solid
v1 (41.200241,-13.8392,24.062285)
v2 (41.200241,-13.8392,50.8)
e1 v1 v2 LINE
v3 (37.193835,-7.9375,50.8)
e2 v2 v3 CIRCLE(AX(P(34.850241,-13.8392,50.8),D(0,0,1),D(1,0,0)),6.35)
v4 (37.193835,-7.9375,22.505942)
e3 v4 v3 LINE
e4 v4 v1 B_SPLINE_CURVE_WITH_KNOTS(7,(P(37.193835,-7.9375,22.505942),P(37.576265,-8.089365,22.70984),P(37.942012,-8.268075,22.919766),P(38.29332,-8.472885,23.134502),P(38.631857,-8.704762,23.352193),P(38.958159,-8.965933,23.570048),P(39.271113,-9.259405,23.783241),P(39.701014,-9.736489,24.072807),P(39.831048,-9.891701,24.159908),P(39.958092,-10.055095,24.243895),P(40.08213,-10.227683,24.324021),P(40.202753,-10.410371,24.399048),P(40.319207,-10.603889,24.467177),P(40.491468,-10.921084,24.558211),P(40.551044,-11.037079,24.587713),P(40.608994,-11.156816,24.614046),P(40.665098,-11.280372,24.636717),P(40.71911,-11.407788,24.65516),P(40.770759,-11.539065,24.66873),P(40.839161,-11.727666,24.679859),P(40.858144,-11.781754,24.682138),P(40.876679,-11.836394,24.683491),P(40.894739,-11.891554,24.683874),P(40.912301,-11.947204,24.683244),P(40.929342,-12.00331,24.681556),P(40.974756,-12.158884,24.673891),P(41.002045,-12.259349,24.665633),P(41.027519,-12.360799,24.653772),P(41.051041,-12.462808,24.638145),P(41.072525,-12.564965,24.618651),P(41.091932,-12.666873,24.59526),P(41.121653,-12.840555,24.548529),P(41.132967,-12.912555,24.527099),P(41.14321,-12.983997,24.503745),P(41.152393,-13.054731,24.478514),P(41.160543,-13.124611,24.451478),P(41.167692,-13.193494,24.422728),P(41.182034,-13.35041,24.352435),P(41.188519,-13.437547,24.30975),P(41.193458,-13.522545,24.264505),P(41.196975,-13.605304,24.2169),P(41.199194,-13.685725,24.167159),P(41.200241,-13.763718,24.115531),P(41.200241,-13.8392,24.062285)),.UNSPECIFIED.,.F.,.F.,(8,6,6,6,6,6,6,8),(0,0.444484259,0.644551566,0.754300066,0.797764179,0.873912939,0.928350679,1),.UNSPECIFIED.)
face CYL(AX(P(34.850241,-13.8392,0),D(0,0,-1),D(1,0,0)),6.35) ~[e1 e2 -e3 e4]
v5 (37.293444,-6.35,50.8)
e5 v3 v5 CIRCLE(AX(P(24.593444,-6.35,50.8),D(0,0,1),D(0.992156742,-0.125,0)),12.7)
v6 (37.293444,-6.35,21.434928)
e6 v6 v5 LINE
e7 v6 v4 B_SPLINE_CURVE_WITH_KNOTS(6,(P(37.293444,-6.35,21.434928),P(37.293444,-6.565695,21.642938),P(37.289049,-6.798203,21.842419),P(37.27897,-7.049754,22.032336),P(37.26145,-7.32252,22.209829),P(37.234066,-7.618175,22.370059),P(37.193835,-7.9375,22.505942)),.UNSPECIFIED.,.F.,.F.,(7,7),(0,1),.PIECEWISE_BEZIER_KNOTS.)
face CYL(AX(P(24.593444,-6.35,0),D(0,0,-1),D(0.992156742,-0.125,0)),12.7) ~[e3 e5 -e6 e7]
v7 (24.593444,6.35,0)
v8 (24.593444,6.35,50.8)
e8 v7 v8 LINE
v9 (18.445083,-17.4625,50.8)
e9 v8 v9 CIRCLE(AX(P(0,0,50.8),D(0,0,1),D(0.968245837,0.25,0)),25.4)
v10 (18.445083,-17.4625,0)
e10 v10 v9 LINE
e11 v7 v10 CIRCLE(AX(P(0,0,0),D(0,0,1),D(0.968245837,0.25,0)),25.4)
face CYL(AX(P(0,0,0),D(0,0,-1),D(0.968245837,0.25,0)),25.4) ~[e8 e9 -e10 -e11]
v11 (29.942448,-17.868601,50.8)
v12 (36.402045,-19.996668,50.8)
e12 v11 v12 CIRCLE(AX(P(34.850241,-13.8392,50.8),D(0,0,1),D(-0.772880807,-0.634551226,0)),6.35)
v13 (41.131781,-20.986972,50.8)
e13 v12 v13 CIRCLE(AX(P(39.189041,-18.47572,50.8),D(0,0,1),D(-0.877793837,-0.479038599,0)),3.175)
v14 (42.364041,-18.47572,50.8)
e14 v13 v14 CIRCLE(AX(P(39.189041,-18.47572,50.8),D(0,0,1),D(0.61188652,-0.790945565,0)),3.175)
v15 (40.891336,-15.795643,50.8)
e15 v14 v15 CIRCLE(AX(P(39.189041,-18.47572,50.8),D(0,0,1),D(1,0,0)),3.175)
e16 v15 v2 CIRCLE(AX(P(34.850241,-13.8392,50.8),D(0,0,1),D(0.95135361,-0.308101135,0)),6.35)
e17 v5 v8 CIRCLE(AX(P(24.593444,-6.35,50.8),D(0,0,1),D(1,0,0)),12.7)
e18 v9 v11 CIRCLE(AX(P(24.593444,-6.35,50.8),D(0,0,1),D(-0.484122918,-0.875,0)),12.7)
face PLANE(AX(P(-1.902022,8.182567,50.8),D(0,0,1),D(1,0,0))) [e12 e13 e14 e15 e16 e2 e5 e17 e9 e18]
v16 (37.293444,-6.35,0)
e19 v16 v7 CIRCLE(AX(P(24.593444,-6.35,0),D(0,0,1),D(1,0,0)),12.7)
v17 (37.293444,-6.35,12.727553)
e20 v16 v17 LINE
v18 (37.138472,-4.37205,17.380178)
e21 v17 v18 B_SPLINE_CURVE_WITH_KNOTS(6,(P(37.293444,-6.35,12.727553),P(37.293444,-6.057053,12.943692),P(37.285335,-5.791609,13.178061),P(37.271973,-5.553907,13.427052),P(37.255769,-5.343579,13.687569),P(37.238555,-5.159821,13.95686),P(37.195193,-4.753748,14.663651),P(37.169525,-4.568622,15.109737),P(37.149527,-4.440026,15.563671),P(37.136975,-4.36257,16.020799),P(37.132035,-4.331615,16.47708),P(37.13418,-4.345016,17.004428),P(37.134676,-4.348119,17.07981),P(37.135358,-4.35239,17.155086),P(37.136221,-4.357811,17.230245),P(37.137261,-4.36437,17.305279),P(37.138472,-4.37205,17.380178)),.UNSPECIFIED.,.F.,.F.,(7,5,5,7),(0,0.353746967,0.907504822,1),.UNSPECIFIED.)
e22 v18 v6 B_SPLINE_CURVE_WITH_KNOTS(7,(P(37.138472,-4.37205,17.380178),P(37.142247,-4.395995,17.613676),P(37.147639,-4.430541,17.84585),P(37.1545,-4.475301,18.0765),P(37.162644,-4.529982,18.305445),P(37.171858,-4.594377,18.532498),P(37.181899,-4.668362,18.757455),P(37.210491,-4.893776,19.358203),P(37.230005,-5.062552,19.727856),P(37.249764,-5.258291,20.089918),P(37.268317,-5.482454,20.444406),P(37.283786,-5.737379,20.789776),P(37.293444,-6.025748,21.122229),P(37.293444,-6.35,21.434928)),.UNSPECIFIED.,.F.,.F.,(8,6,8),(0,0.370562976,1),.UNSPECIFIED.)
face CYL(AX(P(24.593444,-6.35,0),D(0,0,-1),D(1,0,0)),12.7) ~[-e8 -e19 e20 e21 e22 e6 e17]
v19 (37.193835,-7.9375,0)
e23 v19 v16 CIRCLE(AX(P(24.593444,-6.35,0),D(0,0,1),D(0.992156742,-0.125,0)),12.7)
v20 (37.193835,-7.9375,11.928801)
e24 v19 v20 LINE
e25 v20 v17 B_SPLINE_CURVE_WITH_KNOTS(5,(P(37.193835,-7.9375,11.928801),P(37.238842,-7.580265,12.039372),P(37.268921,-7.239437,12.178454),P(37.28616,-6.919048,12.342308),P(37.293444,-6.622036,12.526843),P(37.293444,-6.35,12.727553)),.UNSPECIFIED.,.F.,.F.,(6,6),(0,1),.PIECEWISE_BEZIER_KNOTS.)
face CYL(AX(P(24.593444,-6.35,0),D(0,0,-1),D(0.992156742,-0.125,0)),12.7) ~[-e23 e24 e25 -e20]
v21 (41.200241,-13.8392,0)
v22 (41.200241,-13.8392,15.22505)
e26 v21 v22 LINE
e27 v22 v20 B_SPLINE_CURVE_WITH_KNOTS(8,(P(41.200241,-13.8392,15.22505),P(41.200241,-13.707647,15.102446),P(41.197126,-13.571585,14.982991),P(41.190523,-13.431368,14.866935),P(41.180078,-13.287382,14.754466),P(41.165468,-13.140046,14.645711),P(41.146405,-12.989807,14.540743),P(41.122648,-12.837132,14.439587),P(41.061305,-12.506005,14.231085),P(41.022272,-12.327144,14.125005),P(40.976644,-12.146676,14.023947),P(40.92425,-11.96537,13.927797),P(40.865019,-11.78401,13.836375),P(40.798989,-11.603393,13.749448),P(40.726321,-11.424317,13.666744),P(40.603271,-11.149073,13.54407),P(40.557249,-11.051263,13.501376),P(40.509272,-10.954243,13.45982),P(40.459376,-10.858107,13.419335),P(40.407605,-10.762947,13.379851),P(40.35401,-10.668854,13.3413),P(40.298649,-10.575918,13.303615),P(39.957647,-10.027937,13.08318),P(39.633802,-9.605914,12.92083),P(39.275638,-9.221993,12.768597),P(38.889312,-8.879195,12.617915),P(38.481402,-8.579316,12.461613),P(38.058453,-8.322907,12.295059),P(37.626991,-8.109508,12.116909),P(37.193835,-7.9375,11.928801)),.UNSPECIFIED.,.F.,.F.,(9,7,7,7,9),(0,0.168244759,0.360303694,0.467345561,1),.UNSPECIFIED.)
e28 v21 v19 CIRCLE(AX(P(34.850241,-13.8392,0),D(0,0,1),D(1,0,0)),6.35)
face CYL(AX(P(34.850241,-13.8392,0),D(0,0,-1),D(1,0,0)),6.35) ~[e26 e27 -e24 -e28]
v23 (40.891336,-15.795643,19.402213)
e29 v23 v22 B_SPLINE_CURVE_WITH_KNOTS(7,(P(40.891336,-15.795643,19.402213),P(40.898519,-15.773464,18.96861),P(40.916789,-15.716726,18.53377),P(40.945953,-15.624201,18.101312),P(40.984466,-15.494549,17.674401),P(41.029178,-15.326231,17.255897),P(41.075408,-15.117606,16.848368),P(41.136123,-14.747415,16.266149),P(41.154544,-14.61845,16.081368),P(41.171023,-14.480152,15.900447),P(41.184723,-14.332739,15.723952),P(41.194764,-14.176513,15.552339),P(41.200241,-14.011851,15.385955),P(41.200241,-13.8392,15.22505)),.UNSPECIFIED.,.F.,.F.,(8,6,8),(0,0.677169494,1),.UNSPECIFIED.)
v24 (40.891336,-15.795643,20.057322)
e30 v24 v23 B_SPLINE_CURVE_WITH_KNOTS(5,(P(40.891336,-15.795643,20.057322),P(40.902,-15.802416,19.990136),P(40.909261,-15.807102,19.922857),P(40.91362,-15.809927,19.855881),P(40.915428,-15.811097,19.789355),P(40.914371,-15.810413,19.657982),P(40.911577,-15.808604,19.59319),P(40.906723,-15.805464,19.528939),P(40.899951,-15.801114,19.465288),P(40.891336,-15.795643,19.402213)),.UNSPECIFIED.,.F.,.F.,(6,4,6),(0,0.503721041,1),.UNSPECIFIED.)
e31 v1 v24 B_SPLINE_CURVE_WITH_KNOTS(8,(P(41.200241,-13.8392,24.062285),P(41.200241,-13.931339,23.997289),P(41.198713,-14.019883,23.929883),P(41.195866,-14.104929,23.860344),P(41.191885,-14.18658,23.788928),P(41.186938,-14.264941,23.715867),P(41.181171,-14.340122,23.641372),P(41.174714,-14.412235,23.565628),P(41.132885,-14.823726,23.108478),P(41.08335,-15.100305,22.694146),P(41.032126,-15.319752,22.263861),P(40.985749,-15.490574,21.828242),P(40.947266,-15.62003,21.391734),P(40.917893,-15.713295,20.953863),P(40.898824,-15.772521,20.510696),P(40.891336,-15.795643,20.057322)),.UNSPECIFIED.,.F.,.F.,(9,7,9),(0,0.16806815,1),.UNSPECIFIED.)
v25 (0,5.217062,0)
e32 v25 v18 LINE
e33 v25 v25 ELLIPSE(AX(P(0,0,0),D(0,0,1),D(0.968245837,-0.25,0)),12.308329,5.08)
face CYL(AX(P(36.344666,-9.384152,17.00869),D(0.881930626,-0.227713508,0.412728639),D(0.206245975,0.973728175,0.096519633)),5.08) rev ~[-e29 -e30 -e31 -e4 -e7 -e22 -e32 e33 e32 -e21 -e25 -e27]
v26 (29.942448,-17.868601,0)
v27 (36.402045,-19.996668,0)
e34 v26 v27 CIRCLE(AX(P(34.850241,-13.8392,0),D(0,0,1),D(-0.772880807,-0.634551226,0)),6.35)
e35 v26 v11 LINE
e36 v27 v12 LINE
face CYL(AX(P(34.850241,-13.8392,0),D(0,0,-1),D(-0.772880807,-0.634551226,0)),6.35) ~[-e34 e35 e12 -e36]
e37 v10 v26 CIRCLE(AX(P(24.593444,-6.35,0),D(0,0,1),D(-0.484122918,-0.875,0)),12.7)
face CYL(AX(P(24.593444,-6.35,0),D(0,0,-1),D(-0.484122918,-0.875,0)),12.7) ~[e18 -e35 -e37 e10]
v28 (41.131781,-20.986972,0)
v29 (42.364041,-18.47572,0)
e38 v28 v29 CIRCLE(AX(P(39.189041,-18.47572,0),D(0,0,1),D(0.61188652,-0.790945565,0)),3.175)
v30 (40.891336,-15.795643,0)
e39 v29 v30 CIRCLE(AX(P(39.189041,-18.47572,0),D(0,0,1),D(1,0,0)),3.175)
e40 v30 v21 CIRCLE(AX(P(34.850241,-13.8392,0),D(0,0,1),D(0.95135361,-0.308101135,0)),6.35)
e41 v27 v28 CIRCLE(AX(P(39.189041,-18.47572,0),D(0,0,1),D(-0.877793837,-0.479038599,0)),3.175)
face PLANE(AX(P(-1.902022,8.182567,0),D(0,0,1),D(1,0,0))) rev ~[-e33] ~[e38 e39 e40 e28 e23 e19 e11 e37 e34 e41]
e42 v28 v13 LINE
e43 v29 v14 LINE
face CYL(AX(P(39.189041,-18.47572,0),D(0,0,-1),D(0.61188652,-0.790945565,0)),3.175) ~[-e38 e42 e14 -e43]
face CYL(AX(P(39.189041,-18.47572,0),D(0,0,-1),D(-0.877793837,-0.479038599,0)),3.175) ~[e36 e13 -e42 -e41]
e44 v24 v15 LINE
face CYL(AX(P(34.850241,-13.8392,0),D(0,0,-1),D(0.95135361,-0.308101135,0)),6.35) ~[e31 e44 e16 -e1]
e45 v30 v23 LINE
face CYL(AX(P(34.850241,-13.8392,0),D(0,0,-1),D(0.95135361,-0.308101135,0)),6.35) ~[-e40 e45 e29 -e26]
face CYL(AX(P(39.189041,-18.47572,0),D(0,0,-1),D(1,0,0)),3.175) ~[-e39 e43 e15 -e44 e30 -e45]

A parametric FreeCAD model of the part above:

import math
import FreeCAD as App
import Part
import Sketcher
Q = App.Units.Quantity

doc = App.newDocument("Part")
body = doc.addObject("PartDesign::Body", "Body")

# Sketch on XY plane
sketch1 = doc.addObject("Sketcher::SketchObject", "Sketch")
body.addObject(sketch1)
sketch1.AttachmentSupport = (doc.XY_Plane, [""])
sketch1.MapMode = "FlatFace"
sketch1.addGeometry([
    Part.ArcOfCircle(Part.Circle(App.Vector(0, 0, 0), App.Vector(0, 0, 1), 25.4), math.radians(14), math.radians(317)),  # 0
    Part.ArcOfCircle(Part.Circle(App.Vector(24.6, -6.3, 0), App.Vector(0, 0, 1), 12.7), math.radians(-119), math.radians(-65)),  # 1
    Part.ArcOfCircle(Part.Circle(App.Vector(34.9, -13.8, 0), App.Vector(0, 0, 1), 6.3), math.radians(-141), math.radians(-76)),  # 2
    Part.ArcOfCircle(Part.Circle(App.Vector(39.2, -18.5, 0), App.Vector(0, 0, 1), 3.2), math.radians(-151), math.radians(-52)),  # 3
    Part.ArcOfCircle(Part.Circle(App.Vector(39.2, -18.5, 0), App.Vector(0, 0, 1), 3.2), math.radians(-52), math.radians(0)),  # 4
    Part.ArcOfCircle(Part.Circle(App.Vector(39.2, -18.5, 0), App.Vector(0, 0, 1), 3.2), math.radians(0), math.radians(58)),  # 5
    Part.ArcOfCircle(Part.Circle(App.Vector(34.9, -13.8, 0), App.Vector(0, 0, 1), 6.4), math.radians(-17.94), math.radians(0)),  # 6
    Part.ArcOfCircle(Part.Circle(App.Vector(34.9, -13.8, 0), App.Vector(0, 0, 1), 6.3), math.radians(0), math.radians(68)),  # 7
    Part.ArcOfCircle(Part.Circle(App.Vector(24.6, -6.3, 0), App.Vector(0, 0, 1), 12.7), math.radians(-7.18), math.radians(0)),  # 8
    Part.ArcOfCircle(Part.Circle(App.Vector(24.6, -6.3, 0), App.Vector(0, 0, 1), 12.7), math.radians(0), math.radians(90)),  # 9
], False)
sketch1.addConstraint([
    Sketcher.Constraint("Coincident", 0, 2, 1, 1),
    Sketcher.Constraint("Coincident", 1, 2, 2, 1),
    Sketcher.Constraint("Coincident", 2, 2, 3, 1),
    Sketcher.Constraint("Tangent", 3, 2, 4, 1),
    Sketcher.Constraint("Tangent", 4, 2, 5, 1),
    Sketcher.Constraint("Coincident", 5, 2, 6, 1),
    Sketcher.Constraint("Tangent", 6, 2, 7, 1),
    Sketcher.Constraint("Coincident", 7, 2, 8, 1),
    Sketcher.Constraint("Tangent", 8, 2, 9, 1),
    Sketcher.Constraint("Coincident", 9, 2, 0, 1),
    Sketcher.Constraint("Coincident", 0, 3, -1, 1),
    Sketcher.Constraint("Coincident", 5, 3, 3, 3),
    Sketcher.Constraint("Coincident", 6, 3, 2, 3),
    Sketcher.Constraint("Coincident", 8, 3, 1, 3),
    Sketcher.Constraint("Equal", 2, 6),
    Sketcher.Constraint("Equal", 6, 7),
    Sketcher.Constraint("Equal", 1, 8),
    Sketcher.Constraint("Equal", 8, 9),
    Sketcher.Constraint("Horizontal", 5, 3, 4, 2),
    Sketcher.Constraint("Horizontal", 7, 3, 6, 2),
    Sketcher.Constraint("Horizontal", 9, 3, 8, 2),
    Sketcher.Constraint("Vertical", 8, 3, 9, 2),
    Sketcher.Constraint("Radius", 0, Q("1 in")),
    Sketcher.Constraint("Radius", 1, Q("0.5 in")),
    Sketcher.Constraint("Radius", 2, Q("0.25 in")),
    Sketcher.Constraint("Radius", 3, Q("0.125 in")),
    Sketcher.Constraint("DistanceY", 1, 3, -1, 1, Q("0.25 in")),
    Sketcher.Constraint("DistanceY", 7, 2, -1, 1, Q("0.3125 in")),
    Sketcher.Constraint("DistanceY", 2, 3, -1, 1, 13.8392),
    Sketcher.Constraint("DistanceX", 2, 3, 3, 3, 4.3388),
    Sketcher.Constraint("DistanceX", 7, 2, 5, 2, 3.697501),
    Sketcher.Constraint("DistanceX", -1, 1, 3, 2, 41.131781),
])
pad1 = doc.addObject("PartDesign::Pad", "Pad")
body.addObject(pad1)
pad1.Profile = sketch1
pad1.Length = Q("2 in")

# Sketch on an angled plane
sketch2 = doc.addObject("Sketcher::SketchObject", "Sketch001")
body.addObject(sketch2)
sketch2.Placement = App.Placement(App.Vector(36.344666, -9.384152, 17.00869), App.Rotation(App.Vector(0.206245975, 0.973728175, 0.096519633), App.Vector(-0.423864329, 0, 0.905725693), App.Vector(0.881930626, -0.227713508, 0.412728639), "ZXY"))
sketch2.addGeometry(Part.Circle(App.Vector(0, 0, 0), App.Vector(0, 0, 1), 5), False)
sketch2.addConstraint([
    Sketcher.Constraint("Coincident", 0, 3, -1, 1),
    Sketcher.Constraint("Diameter", 0, Q("0.4 in")),
])
pocket1 = doc.addObject("PartDesign::Pocket", "Pocket")
body.addObject(pocket1)
pocket1.Profile = sketch2
pocket1.Length = Q("5 in")
pocket1.Midplane = True

doc.recompute()
